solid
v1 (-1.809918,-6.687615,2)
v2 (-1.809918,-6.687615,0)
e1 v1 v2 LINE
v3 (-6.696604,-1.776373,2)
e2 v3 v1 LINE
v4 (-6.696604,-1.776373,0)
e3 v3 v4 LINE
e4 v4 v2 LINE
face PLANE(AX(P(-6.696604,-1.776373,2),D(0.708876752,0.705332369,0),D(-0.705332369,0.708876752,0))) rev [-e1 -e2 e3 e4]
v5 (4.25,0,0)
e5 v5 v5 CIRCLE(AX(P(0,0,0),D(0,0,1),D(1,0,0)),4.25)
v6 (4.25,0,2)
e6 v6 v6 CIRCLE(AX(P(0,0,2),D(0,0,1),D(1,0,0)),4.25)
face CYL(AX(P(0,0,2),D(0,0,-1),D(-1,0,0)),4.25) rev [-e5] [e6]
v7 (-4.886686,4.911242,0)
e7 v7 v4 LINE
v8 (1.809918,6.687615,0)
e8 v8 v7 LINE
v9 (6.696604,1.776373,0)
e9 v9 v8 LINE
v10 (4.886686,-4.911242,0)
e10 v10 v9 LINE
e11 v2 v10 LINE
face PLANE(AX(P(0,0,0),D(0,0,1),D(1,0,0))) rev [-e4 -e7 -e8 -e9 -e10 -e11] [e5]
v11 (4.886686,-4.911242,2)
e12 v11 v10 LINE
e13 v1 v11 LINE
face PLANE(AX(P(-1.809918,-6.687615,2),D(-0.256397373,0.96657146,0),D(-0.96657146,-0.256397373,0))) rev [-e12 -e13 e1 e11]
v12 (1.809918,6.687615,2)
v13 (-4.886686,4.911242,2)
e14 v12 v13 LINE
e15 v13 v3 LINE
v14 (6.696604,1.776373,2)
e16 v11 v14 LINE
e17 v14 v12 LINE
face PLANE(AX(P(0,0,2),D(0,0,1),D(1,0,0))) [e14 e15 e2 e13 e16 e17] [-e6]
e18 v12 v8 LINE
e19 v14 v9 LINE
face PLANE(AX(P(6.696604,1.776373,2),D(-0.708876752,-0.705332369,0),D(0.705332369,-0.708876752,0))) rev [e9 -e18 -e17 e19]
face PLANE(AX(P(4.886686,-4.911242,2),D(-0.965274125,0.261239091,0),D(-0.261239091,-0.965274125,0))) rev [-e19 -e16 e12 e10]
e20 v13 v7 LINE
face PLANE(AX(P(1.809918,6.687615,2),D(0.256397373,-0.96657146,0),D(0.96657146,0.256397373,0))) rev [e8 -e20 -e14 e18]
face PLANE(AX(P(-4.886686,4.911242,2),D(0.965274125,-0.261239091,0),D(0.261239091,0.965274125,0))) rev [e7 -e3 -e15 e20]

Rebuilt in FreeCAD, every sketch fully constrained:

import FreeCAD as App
import Part
import Sketcher


def add_polygon(sketch, points):
    """Adds a closed chain of lines whose ends are joined by coincident constraints."""
    first, n = sketch.GeometryCount, len(points)
    for a, b in zip(points, points[1:] + points[:1]):
        sketch.addGeometry(Part.LineSegment(App.Vector(*a, 0), App.Vector(*b, 0)), False)
    for i in range(n):
        sketch.addConstraint(Sketcher.Constraint("Coincident", first + i, 2, first + (i + 1) % n, 1))

doc = App.newDocument("Part")
body = doc.addObject("PartDesign::Body", "Body")

sketch1 = body.newObject("Sketcher::SketchObject", "Sketch")
sketch1.AttachmentSupport = (doc.getObject("XY_Plane"), [""])
sketch1.MapMode = "FlatFace"
add_polygon(sketch1, [(4.9, -4.9), (6.7, 1.8), (1.8, 6.7), (-4.9, 4.9), (-6.7, -1.8), (-1.8, -6.7)])
sketch1.addGeometry(Part.Circle(App.Vector(0, 0, 0), App.Vector(0, 0, 1), 4.2), False)
sketch1.addConstraint([
    Sketcher.Constraint("Coincident", 6, 3, -1, 1),
    Sketcher.Constraint("Symmetric", 0, 2, 3, 2, -1, 1),
    Sketcher.Constraint("Symmetric", 1, 2, 4, 2, -1, 1),
    Sketcher.Constraint("Symmetric", 2, 2, 5, 2, -1, 1),
    Sketcher.Constraint("Equal", 0, 1),
    Sketcher.Constraint("Equal", 1, 2),
    Sketcher.Constraint("Diameter", 6, 8.5),
    Sketcher.Constraint("DistanceX", 2, 2, 0, 2, 11.58329),
    Sketcher.Constraint("DistanceY", 0, 2, 2, 2, 3.134869),
    Sketcher.Constraint("DistanceX", 3, 2, 1, 2, 8.506521),
    Sketcher.Constraint("DistanceY", 3, 2, 1, 2, 8.463988),
])
pad1 = body.newObject("PartDesign::Pad", "Pad")
pad1.Profile = sketch1
pad1.Length = 2

doc.recompute()
